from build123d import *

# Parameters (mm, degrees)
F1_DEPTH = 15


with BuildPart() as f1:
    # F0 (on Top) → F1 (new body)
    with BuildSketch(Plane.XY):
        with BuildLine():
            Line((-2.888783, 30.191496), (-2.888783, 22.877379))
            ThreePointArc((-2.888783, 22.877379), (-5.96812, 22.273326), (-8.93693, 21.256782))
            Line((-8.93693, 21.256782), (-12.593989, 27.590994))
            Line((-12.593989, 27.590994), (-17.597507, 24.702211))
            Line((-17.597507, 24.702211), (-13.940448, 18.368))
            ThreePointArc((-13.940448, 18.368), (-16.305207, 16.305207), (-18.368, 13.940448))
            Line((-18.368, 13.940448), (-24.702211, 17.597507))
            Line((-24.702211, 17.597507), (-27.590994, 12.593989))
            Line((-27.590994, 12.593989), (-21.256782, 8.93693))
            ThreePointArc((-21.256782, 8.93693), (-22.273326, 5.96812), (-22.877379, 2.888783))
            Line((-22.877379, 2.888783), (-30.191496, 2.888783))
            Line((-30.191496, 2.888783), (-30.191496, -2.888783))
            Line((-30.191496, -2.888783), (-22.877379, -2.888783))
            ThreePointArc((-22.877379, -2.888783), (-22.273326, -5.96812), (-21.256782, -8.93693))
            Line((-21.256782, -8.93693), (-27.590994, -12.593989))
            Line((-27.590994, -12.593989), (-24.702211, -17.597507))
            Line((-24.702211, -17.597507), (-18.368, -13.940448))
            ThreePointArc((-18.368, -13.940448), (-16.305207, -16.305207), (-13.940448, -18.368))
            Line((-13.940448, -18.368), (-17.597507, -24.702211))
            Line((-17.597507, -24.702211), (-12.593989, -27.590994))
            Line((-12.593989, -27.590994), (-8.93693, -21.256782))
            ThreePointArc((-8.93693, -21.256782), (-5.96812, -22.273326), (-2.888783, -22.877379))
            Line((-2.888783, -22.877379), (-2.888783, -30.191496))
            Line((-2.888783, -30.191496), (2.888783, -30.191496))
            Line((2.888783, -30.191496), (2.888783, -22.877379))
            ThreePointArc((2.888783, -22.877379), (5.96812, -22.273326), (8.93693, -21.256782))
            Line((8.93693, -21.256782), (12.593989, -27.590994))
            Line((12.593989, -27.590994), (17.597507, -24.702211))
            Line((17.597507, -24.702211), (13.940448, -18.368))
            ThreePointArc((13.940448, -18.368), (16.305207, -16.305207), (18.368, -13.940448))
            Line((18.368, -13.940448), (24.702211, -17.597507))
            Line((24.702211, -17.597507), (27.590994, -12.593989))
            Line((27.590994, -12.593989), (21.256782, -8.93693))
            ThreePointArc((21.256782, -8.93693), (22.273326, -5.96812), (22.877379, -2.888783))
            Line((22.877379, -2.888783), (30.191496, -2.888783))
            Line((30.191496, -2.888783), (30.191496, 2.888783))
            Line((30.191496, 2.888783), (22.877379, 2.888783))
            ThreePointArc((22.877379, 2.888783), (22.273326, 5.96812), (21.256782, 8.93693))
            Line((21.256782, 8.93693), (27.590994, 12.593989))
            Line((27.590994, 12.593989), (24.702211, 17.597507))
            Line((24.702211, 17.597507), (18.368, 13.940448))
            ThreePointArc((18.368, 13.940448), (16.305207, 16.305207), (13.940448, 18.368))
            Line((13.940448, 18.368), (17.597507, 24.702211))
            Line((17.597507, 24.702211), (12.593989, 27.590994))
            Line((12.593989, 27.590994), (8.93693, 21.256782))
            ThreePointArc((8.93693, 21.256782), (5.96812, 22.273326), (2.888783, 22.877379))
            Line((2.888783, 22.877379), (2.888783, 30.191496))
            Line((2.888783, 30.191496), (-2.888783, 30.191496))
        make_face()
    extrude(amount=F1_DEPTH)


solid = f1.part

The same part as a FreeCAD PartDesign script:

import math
import FreeCAD as App
import Part
import Sketcher

V = App.Vector
Q = App.Units.Quantity

doc = App.newDocument("Part")
body = doc.addObject("PartDesign::Body", "Body")

# Sketch on XY plane
sketch1 = doc.addObject("Sketcher::SketchObject", "Sketch")
body.addObject(sketch1)
sketch1.AttachmentSupport = (doc.XY_Plane, [""])
sketch1.MapMode = "FlatFace"
sketch1.addGeometry(Part.LineSegment(V(-2.888783, 30.191496, 0), V(-2.888783, 22.877379, 0)), False)
sketch1.addGeometry(Part.ArcOfCircle(Part.Circle(V(0.000009, -0.000023, 0), V(0, 0, 1), 23.059069), math.radians(97.196806), math.radians(112.80321)), False)
sketch1.addGeometry(Part.LineSegment(V(-8.93693, 21.256782, 0), V(-12.593989, 27.590994, 0)), False)
sketch1.addGeometry(Part.LineSegment(V(-12.593989, 27.590994, 0), V(-17.597507, 24.702211, 0)), False)
sketch1.addGeometry(Part.LineSegment(V(-17.597507, 24.702211, 0), V(-13.940448, 18.368, 0)), False)
sketch1.addGeometry(Part.ArcOfCircle(Part.Circle(V(-0.00006, 0.00006, 0), V(0, 0, 1), 23.05896), math.radians(127.19676), math.radians(142.80324)), False)
sketch1.addGeometry(Part.LineSegment(V(-18.368, 13.940448, 0), V(-24.702211, 17.597507, 0)), False)
sketch1.addGeometry(Part.LineSegment(V(-24.702211, 17.597507, 0), V(-27.590994, 12.593989, 0)), False)
sketch1.addGeometry(Part.LineSegment(V(-27.590994, 12.593989, 0), V(-21.256782, 8.93693, 0)), False)
sketch1.addGeometry(Part.ArcOfCircle(Part.Circle(V(0.000023, -0.000009, 0), V(0, 0, 1), 23.059069), math.radians(157.19679), math.radians(172.803194)), False)
sketch1.addGeometry(Part.LineSegment(V(-22.877379, 2.888783, 0), V(-30.191496, 2.888783, 0)), False)
sketch1.addGeometry(Part.LineSegment(V(-30.191496, 2.888783, 0), V(-30.191496, -2.888783, 0)), False)
sketch1.addGeometry(Part.LineSegment(V(-30.191496, -2.888783, 0), V(-22.877379, -2.888783, 0)), False)
sketch1.addGeometry(Part.ArcOfCircle(Part.Circle(V(0.000023, 0.000009, 0), V(0, 0, 1), 23.059069), math.radians(-172.803194), math.radians(-157.19679)), False)
sketch1.addGeometry(Part.LineSegment(V(-21.256782, -8.93693, 0), V(-27.590994, -12.593989, 0)), False)
sketch1.addGeometry(Part.LineSegment(V(-27.590994, -12.593989, 0), V(-24.702211, -17.597507, 0)), False)
sketch1.addGeometry(Part.LineSegment(V(-24.702211, -17.597507, 0), V(-18.368, -13.940448, 0)), False)
sketch1.addGeometry(Part.ArcOfCircle(Part.Circle(V(-0.00006, -0.00006, 0), V(0, 0, 1), 23.05896), math.radians(-142.80324), math.radians(-127.19676)), False)
sketch1.addGeometry(Part.LineSegment(V(-13.940448, -18.368, 0), V(-17.597507, -24.702211, 0)), False)
sketch1.addGeometry(Part.LineSegment(V(-17.597507, -24.702211, 0), V(-12.593989, -27.590994, 0)), False)
sketch1.addGeometry(Part.LineSegment(V(-12.593989, -27.590994, 0), V(-8.93693, -21.256782, 0)), False)
sketch1.addGeometry(Part.ArcOfCircle(Part.Circle(V(0.000009, 0.000023, 0), V(0, 0, 1), 23.059069), math.radians(-112.80321), math.radians(-97.196806)), False)
sketch1.addGeometry(Part.LineSegment(V(-2.888783, -22.877379, 0), V(-2.888783, -30.191496, 0)), False)
sketch1.addGeometry(Part.LineSegment(V(-2.888783, -30.191496, 0), V(2.888783, -30.191496, 0)), False)
sketch1.addGeometry(Part.LineSegment(V(2.888783, -30.191496, 0), V(2.888783, -22.877379, 0)), False)
sketch1.addGeometry(Part.ArcOfCircle(Part.Circle(V(-0.000009, 0.000023, 0), V(0, 0, 1), 23.059069), math.radians(-82.803194), math.radians(-67.19679)), False)
sketch1.addGeometry(Part.LineSegment(V(8.93693, -21.256782, 0), V(12.593989, -27.590994, 0)), False)
sketch1.addGeometry(Part.LineSegment(V(12.593989, -27.590994, 0), V(17.597507, -24.702211, 0)), False)
sketch1.addGeometry(Part.LineSegment(V(17.597507, -24.702211, 0), V(13.940448, -18.368, 0)), False)
sketch1.addGeometry(Part.ArcOfCircle(Part.Circle(V(0.00006, -0.00006, 0), V(0, 0, 1), 23.05896), math.radians(-52.80324), math.radians(-37.19676)), False)
sketch1.addGeometry(Part.LineSegment(V(18.368, -13.940448, 0), V(24.702211, -17.597507, 0)), False)
sketch1.addGeometry(Part.LineSegment(V(24.702211, -17.597507, 0), V(27.590994, -12.593989, 0)), False)
sketch1.addGeometry(Part.LineSegment(V(27.590994, -12.593989, 0), V(21.256782, -8.93693, 0)), False)
sketch1.addGeometry(Part.ArcOfCircle(Part.Circle(V(-0.000023, 0.000009, 0), V(0, 0, 1), 23.059069), math.radians(-22.80321), math.radians(-7.196806)), False)
sketch1.addGeometry(Part.LineSegment(V(22.877379, -2.888783, 0), V(30.191496, -2.888783, 0)), False)
sketch1.addGeometry(Part.LineSegment(V(30.191496, -2.888783, 0), V(30.191496, 2.888783, 0)), False)
sketch1.addGeometry(Part.LineSegment(V(30.191496, 2.888783, 0), V(22.877379, 2.888783, 0)), False)
sketch1.addGeometry(Part.ArcOfCircle(Part.Circle(V(-0.000023, -0.000009, 0), V(0, 0, 1), 23.059069), math.radians(7.196806), math.radians(22.80321)), False)
sketch1.addGeometry(Part.LineSegment(V(21.256782, 8.93693, 0), V(27.590994, 12.593989, 0)), False)
sketch1.addGeometry(Part.LineSegment(V(27.590994, 12.593989, 0), V(24.702211, 17.597507, 0)), False)
sketch1.addGeometry(Part.LineSegment(V(24.702211, 17.597507, 0), V(18.368, 13.940448, 0)), False)
sketch1.addGeometry(Part.ArcOfCircle(Part.Circle(V(0.00006, 0.00006, 0), V(0, 0, 1), 23.05896), math.radians(37.19676), math.radians(52.80324)), False)
sketch1.addGeometry(Part.LineSegment(V(13.940448, 18.368, 0), V(17.597507, 24.702211, 0)), False)
sketch1.addGeometry(Part.LineSegment(V(17.597507, 24.702211, 0), V(12.593989, 27.590994, 0)), False)
sketch1.addGeometry(Part.LineSegment(V(12.593989, 27.590994, 0), V(8.93693, 21.256782, 0)), False)
sketch1.addGeometry(Part.ArcOfCircle(Part.Circle(V(-0.000009, -0.000023, 0), V(0, 0, 1), 23.059069), math.radians(67.19679), math.radians(82.803194)), False)
sketch1.addGeometry(Part.LineSegment(V(2.888783, 22.877379, 0), V(2.888783, 30.191496, 0)), False)
sketch1.addGeometry(Part.LineSegment(V(2.888783, 30.191496, 0), V(-2.888783, 30.191496, 0)), False)
sketch1.addConstraint(Sketcher.Constraint("Coincident", 0, 2, 1, 1))
sketch1.addConstraint(Sketcher.Constraint("Coincident", 1, 2, 2, 1))
sketch1.addConstraint(Sketcher.Constraint("Coincident", 2, 2, 3, 1))
sketch1.addConstraint(Sketcher.Constraint("Coincident", 3, 2, 4, 1))
sketch1.addConstraint(Sketcher.Constraint("Coincident", 4, 2, 5, 1))
sketch1.addConstraint(Sketcher.Constraint("Coincident", 5, 2, 6, 1))
sketch1.addConstraint(Sketcher.Constraint("Coincident", 6, 2, 7, 1))
sketch1.addConstraint(Sketcher.Constraint("Coincident", 7, 2, 8, 1))
sketch1.addConstraint(Sketcher.Constraint("Coincident", 8, 2, 9, 1))
sketch1.addConstraint(Sketcher.Constraint("Coincident", 9, 2, 10, 1))
sketch1.addConstraint(Sketcher.Constraint("Coincident", 10, 2, 11, 1))
sketch1.addConstraint(Sketcher.Constraint("Coincident", 11, 2, 12, 1))
sketch1.addConstraint(Sketcher.Constraint("Coincident", 12, 2, 13, 1))
sketch1.addConstraint(Sketcher.Constraint("Coincident", 13, 2, 14, 1))
sketch1.addConstraint(Sketcher.Constraint("Coincident", 14, 2, 15, 1))
sketch1.addConstraint(Sketcher.Constraint("Coincident", 15, 2, 16, 1))
sketch1.addConstraint(Sketcher.Constraint("Coincident", 16, 2, 17, 1))
sketch1.addConstraint(Sketcher.Constraint("Coincident", 17, 2, 18, 1))
sketch1.addConstraint(Sketcher.Constraint("Coincident", 18, 2, 19, 1))
sketch1.addConstraint(Sketcher.Constraint("Coincident", 19, 2, 20, 1))
sketch1.addConstraint(Sketcher.Constraint("Coincident", 20, 2, 21, 1))
sketch1.addConstraint(Sketcher.Constraint("Coincident", 21, 2, 22, 1))
sketch1.addConstraint(Sketcher.Constraint("Coincident", 22, 2, 23, 1))
sketch1.addConstraint(Sketcher.Constraint("Coincident", 23, 2, 24, 1))
sketch1.addConstraint(Sketcher.Constraint("Coincident", 24, 2, 25, 1))
sketch1.addConstraint(Sketcher.Constraint("Coincident", 25, 2, 26, 1))
sketch1.addConstraint(Sketcher.Constraint("Coincident", 26, 2, 27, 1))
sketch1.addConstraint(Sketcher.Constraint("Coincident", 27, 2, 28, 1))
sketch1.addConstraint(Sketcher.Constraint("Coincident", 28, 2, 29, 1))
sketch1.addConstraint(Sketcher.Constraint("Coincident", 29, 2, 30, 1))
sketch1.addConstraint(Sketcher.Constraint("Coincident", 30, 2, 31, 1))
sketch1.addConstraint(Sketcher.Constraint("Coincident", 31, 2, 32, 1))
sketch1.addConstraint(Sketcher.Constraint("Coincident", 32, 2, 33, 1))
sketch1.addConstraint(Sketcher.Constraint("Coincident", 33, 2, 34, 1))
sketch1.addConstraint(Sketcher.Constraint("Coincident", 34, 2, 35, 1))
sketch1.addConstraint(Sketcher.Constraint("Coincident", 35, 2, 36, 1))
sketch1.addConstraint(Sketcher.Constraint("Coincident", 36, 2, 37, 1))
sketch1.addConstraint(Sketcher.Constraint("Coincident", 37, 2, 38, 1))
sketch1.addConstraint(Sketcher.Constraint("Coincident", 38, 2, 39, 1))
sketch1.addConstraint(Sketcher.Constraint("Coincident", 39, 2, 40, 1))
sketch1.addConstraint(Sketcher.Constraint("Coincident", 40, 2, 41, 1))
sketch1.addConstraint(Sketcher.Constraint("Coincident", 41, 2, 42, 1))
sketch1.addConstraint(Sketcher.Constraint("Coincident", 42, 2, 43, 1))
sketch1.addConstraint(Sketcher.Constraint("Coincident", 43, 2, 44, 1))
sketch1.addConstraint(Sketcher.Constraint("Coincident", 44, 2, 45, 1))
sketch1.addConstraint(Sketcher.Constraint("Coincident", 45, 2, 46, 1))
sketch1.addConstraint(Sketcher.Constraint("Coincident", 46, 2, 47, 1))
sketch1.addConstraint(Sketcher.Constraint("Coincident", 47, 2, 0, 1))
sketch1.addConstraint(Sketcher.Constraint("Vertical", 0))
sketch1.addConstraint(Sketcher.Constraint("Horizontal", 10))
sketch1.addConstraint(Sketcher.Constraint("Vertical", 11))
sketch1.addConstraint(Sketcher.Constraint("Horizontal", 12))
sketch1.addConstraint(Sketcher.Constraint("Vertical", 22))
sketch1.addConstraint(Sketcher.Constraint("Horizontal", 23))
sketch1.addConstraint(Sketcher.Constraint("Vertical", 24))
sketch1.addConstraint(Sketcher.Constraint("Horizontal", 34))
sketch1.addConstraint(Sketcher.Constraint("Vertical", 35))
sketch1.addConstraint(Sketcher.Constraint("Horizontal", 36))
sketch1.addConstraint(Sketcher.Constraint("Vertical", 46))
sketch1.addConstraint(Sketcher.Constraint("Horizontal", 47))
sketch1.addConstraint(Sketcher.Constraint("Equal", 1, 9))
sketch1.addConstraint(Sketcher.Constraint("Equal", 9, 13))
sketch1.addConstraint(Sketcher.Constraint("Equal", 5, 17))
sketch1.addConstraint(Sketcher.Constraint("Equal", 13, 21))
sketch1.addConstraint(Sketcher.Constraint("Equal", 21, 25))
sketch1.addConstraint(Sketcher.Constraint("Equal", 17, 29))
sketch1.addConstraint(Sketcher.Constraint("Equal", 25, 33))
sketch1.addConstraint(Sketcher.Constraint("Equal", 33, 37))
sketch1.addConstraint(Sketcher.Constraint("Equal", 29, 41))
sketch1.addConstraint(Sketcher.Constraint("Equal", 37, 45))
sketch1.addConstraint(Sketcher.Constraint("Symmetric", 1, 3, 25, 3, -1, 1))
sketch1.addConstraint(Sketcher.Constraint("Symmetric", 5, 3, 29, 3, -1, 1))
sketch1.addConstraint(Sketcher.Constraint("Symmetric", 9, 3, 33, 3, -1, 1))
sketch1.addConstraint(Sketcher.Constraint("Symmetric", 13, 3, 37, 3, -1, 1))
sketch1.addConstraint(Sketcher.Constraint("Symmetric", 17, 3, 41, 3, -1, 1))
sketch1.addConstraint(Sketcher.Constraint("Symmetric", 21, 3, 45, 3, -1, 1))
sketch1.addConstraint(Sketcher.Constraint("Symmetric", 2, 2, 26, 2, -1, 1))
sketch1.addConstraint(Sketcher.Constraint("Symmetric", 3, 2, 27, 2, -1, 1))
sketch1.addConstraint(Sketcher.Constraint("Symmetric", 6, 2, 30, 2, -1, 1))
sketch1.addConstraint(Sketcher.Constraint("Symmetric", 7, 2, 31, 2, -1, 1))
sketch1.addConstraint(Sketcher.Constraint("Symmetric", 10, 2, 34, 2, -1, 1))
sketch1.addConstraint(Sketcher.Constraint("Symmetric", 14, 2, 38, 2, -1, 1))
sketch1.addConstraint(Sketcher.Constraint("Symmetric", 15, 2, 39, 2, -1, 1))
sketch1.addConstraint(Sketcher.Constraint("Symmetric", 18, 2, 42, 2, -1, 1))
sketch1.addConstraint(Sketcher.Constraint("Symmetric", 19, 2, 43, 2, -1, 1))
sketch1.addConstraint(Sketcher.Constraint("Symmetric", 22, 2, 46, 2, -1, 1))
sketch1.addConstraint(Sketcher.Constraint("Symmetric", 21, 3, 25, 3, -2))
sketch1.addConstraint(Sketcher.Constraint("Symmetric", 17, 3, 29, 3, -2))
sketch1.addConstraint(Sketcher.Constraint("Symmetric", 13, 3, 33, 3, -2))
sketch1.addConstraint(Sketcher.Constraint("Symmetric", 19, 2, 26, 2, -2))
sketch1.addConstraint(Sketcher.Constraint("Symmetric", 18, 2, 27, 2, -2))
sketch1.addConstraint(Sketcher.Constraint("Symmetric", 15, 2, 30, 2, -2))
sketch1.addConstraint(Sketcher.Constraint("Symmetric", 14, 2, 31, 2, -2))
sketch1.addConstraint(Sketcher.Constraint("Perpendicular", 2, 3))
sketch1.addConstraint(Sketcher.Constraint("Perpendicular", 3, 4))
sketch1.addConstraint(Sketcher.Constraint("Perpendicular", 6, 7))
sketch1.addConstraint(Sketcher.Constraint("Perpendicular", 7, 8))
sketch1.addConstraint(Sketcher.Constraint("Perpendicular", 4, 14))
sketch1.addConstraint(Sketcher.Constraint("Perpendicular", 14, 15))
sketch1.addConstraint(Sketcher.Constraint("Perpendicular", 15, 16))
sketch1.addConstraint(Sketcher.Constraint("Perpendicular", 8, 18))
sketch1.addConstraint(Sketcher.Constraint("Perpendicular", 19, 20))
sketch1.addConstraint(Sketcher.Constraint("Perpendicular", 16, 26))
sketch1.addConstraint(Sketcher.Constraint("Perpendicular", 27, 28))
sketch1.addConstraint(Sketcher.Constraint("Perpendicular", 20, 30))
sketch1.addConstraint(Sketcher.Constraint("Perpendicular", 31, 32))
sketch1.addConstraint(Sketcher.Constraint("Perpendicular", 28, 38))
sketch1.addConstraint(Sketcher.Constraint("Perpendicular", 39, 40))
sketch1.addConstraint(Sketcher.Constraint("Perpendicular", 32, 42))
sketch1.addConstraint(Sketcher.Constraint("Perpendicular", 43, 44))
sketch1.addConstraint(Sketcher.Constraint("Horizontal", 21, 2, 24, 2))
sketch1.addConstraint(Sketcher.Constraint("Horizontal", 12, 2, 33, 2))
sketch1.addConstraint(Sketcher.Constraint("Horizontal", 10, 2, 35, 2))
sketch1.addConstraint(Sketcher.Constraint("Horizontal", 0, 2, 45, 2))
sketch1.addConstraint(Sketcher.Constraint("Equal", 36, 0))
sketch1.addConstraint(Sketcher.Constraint("Equal", 47, 11))
sketch1.addConstraint(Sketcher.Constraint("Equal", 2, 4))
sketch1.addConstraint(Sketcher.Constraint("Equal", 4, 6))
sketch1.addConstraint(Sketcher.Constraint("Equal", 3, 7))
sketch1.addConstraint(Sketcher.Constraint("Equal", 6, 8))
sketch1.addConstraint(Sketcher.Constraint("Angle", 2, Q("120 deg")))
sketch1.addConstraint(Sketcher.Constraint("Radius", 1, Q("23.059069 mm")))
sketch1.addConstraint(Sketcher.Constraint("Radius", 5, Q("23.05896 mm")))
sketch1.addConstraint(Sketcher.Constraint("DistanceY", -1, 1, 4, 2, Q("18.368 mm")))
sketch1.addConstraint(Sketcher.Constraint("DistanceX", 5, 2, -1, 1, Q("18.368 mm")))
sketch1.addConstraint(Sketcher.Constraint("Distance", 2, Q("7.314118 mm")))
sketch1.addConstraint(Sketcher.Constraint("DistanceX", 10, 2, 10, 1, Q("7.314117 mm")))
sketch1.addConstraint(Sketcher.Constraint("DistanceX", 23, 1, 23, 2, Q("5.777566 mm")))
sketch1.addConstraint(Sketcher.Constraint("DistanceY", -1, 1, 0, 2, Q("22.877379 mm")))
sketch1.addConstraint(Sketcher.Constraint("DistanceX", 1, 2, -1, 1, Q("8.93693 mm")))
sketch1.addConstraint(Sketcher.Constraint("DistanceY", -1, 1, 5, 2, Q("13.940448 mm")))
sketch1.addConstraint(Sketcher.Constraint("DistanceY", -1, 1, 7, 2, Q("12.593989 mm")))
sketch1.addConstraint(Sketcher.Constraint("DistanceX", 9, 2, -1, 1, Q("22.877379 mm")))
pad1 = doc.addObject("PartDesign::Pad", "Pad")
body.addObject(pad1)
pad1.Profile = sketch1
pad1.Length = 15

doc.recompute()
